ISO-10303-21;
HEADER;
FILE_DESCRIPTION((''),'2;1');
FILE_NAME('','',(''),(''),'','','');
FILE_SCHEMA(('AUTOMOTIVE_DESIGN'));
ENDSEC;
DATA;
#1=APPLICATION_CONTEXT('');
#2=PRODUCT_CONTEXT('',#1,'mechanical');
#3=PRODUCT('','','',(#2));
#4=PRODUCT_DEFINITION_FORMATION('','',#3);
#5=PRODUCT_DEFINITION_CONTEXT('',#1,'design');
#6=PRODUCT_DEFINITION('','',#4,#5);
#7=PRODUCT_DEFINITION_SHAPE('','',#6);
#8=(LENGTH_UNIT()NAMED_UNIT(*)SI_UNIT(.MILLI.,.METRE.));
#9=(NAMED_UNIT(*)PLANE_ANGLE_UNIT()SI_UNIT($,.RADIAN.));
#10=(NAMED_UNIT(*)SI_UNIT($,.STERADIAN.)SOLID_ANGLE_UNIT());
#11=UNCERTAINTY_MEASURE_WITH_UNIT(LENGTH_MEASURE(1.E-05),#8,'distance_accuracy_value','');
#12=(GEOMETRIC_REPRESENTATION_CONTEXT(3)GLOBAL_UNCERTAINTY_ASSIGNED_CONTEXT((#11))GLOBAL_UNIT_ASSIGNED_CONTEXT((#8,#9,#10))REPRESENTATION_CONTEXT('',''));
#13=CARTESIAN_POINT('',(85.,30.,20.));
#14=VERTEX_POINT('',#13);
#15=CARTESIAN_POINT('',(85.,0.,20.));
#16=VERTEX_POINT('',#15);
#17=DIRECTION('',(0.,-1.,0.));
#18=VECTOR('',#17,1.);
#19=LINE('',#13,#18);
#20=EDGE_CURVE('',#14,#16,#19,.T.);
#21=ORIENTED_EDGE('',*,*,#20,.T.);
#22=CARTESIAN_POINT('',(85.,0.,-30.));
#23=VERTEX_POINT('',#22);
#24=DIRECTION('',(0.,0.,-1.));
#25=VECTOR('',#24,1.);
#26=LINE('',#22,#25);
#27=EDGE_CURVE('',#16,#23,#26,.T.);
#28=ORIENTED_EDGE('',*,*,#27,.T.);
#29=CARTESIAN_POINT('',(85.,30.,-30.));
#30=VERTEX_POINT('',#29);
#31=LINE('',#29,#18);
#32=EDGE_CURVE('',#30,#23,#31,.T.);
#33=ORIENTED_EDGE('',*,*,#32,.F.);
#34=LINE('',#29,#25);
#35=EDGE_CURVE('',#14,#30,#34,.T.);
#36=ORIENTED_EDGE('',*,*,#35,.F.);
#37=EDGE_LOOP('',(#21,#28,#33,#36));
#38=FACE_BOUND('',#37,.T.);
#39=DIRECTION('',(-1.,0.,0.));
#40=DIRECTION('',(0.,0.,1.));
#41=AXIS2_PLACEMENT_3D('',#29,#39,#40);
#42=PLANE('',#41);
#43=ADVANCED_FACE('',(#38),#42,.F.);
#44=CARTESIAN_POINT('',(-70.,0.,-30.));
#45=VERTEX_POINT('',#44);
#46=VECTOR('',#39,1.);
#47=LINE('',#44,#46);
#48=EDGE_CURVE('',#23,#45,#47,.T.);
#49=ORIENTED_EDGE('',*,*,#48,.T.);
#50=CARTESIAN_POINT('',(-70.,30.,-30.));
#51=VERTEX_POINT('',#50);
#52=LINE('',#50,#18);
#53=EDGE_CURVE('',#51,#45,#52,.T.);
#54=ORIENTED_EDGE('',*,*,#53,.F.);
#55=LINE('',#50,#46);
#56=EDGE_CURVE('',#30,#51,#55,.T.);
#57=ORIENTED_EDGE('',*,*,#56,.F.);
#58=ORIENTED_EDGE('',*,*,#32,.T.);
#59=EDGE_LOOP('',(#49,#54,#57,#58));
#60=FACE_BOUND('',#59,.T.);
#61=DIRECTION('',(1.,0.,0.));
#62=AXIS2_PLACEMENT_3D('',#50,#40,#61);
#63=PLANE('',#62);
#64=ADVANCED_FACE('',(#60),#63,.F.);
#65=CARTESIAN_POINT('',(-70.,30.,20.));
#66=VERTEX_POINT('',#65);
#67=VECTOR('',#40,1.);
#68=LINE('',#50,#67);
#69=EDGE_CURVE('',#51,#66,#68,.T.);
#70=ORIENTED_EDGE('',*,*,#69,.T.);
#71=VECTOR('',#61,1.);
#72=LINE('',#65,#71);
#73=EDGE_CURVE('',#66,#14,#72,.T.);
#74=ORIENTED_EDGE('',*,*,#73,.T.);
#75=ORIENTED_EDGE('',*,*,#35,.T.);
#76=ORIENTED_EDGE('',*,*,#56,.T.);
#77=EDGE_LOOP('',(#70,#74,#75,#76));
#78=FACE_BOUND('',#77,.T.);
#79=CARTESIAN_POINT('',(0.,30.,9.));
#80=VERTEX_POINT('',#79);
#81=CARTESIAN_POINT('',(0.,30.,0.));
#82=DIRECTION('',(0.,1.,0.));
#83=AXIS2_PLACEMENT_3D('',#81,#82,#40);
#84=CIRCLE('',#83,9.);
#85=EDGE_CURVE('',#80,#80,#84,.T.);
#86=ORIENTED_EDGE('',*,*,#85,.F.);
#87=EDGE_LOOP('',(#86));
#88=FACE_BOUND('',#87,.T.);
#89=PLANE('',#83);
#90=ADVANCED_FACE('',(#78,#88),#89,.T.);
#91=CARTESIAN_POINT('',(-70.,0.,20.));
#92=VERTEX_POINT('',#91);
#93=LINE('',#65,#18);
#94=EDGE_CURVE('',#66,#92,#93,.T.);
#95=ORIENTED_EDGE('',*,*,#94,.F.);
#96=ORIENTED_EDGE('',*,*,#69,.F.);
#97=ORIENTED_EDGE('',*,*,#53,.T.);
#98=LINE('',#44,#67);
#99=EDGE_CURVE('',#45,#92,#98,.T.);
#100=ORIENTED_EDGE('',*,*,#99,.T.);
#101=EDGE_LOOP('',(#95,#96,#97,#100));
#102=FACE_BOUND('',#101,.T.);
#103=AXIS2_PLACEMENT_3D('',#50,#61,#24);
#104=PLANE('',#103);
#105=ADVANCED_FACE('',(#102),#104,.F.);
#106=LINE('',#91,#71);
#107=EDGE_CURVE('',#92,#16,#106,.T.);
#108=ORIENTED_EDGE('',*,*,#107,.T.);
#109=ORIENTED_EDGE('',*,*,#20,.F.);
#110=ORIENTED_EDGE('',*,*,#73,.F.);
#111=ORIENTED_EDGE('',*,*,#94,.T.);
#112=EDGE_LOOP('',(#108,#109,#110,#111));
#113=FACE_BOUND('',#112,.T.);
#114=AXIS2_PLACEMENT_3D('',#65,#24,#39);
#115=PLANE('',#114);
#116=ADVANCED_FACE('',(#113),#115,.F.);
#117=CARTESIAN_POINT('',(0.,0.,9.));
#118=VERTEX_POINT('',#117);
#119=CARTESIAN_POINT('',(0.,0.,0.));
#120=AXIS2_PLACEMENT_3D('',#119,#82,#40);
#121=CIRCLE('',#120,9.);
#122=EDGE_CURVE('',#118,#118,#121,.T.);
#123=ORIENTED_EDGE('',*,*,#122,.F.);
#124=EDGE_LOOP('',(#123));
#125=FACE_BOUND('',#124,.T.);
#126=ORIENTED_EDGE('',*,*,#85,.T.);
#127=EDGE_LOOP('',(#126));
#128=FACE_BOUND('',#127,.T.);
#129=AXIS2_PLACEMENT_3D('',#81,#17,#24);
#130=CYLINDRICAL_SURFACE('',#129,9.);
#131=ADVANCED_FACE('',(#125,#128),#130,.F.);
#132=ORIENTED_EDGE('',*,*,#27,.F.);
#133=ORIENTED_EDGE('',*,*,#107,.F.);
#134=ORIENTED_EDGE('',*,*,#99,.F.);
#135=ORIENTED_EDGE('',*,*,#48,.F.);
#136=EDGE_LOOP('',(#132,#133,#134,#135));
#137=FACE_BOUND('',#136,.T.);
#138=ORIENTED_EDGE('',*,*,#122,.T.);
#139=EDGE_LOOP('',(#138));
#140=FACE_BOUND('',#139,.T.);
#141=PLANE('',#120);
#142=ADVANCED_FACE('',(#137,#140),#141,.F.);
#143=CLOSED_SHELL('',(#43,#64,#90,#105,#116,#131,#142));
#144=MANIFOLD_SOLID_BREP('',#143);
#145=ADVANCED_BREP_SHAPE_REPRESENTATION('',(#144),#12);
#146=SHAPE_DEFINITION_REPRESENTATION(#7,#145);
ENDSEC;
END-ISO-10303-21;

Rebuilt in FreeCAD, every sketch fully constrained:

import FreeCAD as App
import Part
import Sketcher
Q = App.Units.Quantity


def add_polygon(sketch, points):
    """Adds a closed chain of lines whose ends are joined by coincident constraints."""
    first, n = sketch.GeometryCount, len(points)
    for a, b in zip(points, points[1:] + points[:1]):
        sketch.addGeometry(Part.LineSegment(App.Vector(*a, 0), App.Vector(*b, 0)), False)
    for i in range(n):
        sketch.addConstraint(Sketcher.Constraint("Coincident", first + i, 2, first + (i + 1) % n, 1))

doc = App.newDocument("Part")
params = doc.addObject("Spreadsheet::Sheet", "Params")
for row, (alias, value) in enumerate([
    ("sketch1_diameter", "18 mm"),
    ("sketch1_width", "155 mm"),
    ("sketch1_height", "50 mm"),
    ("pad1_length", "30 mm"),
], start=1):
    params.set(f"A{row}", alias)
    params.set(f"B{row}", "=" + value)
    params.setAlias(f"B{row}", alias)

body = doc.addObject("PartDesign::Body", "Body")

# Sketch on XZ plane
sketch1 = body.newObject("Sketcher::SketchObject", "Sketch")
sketch1.AttachmentSupport = (doc.getObject("XZ_Plane"), [""])
sketch1.MapMode = "FlatFace"
add_polygon(sketch1, [(-70, -30), (-70, 20), (85, 20), (85, -30)])  # lines 0-3
sketch1.addGeometry(Part.Circle(App.Vector(0, 0, 0), App.Vector(0, 0, 1), 9), False)  # 4
sketch1.addConstraint([
    Sketcher.Constraint("Vertical", 0),
    Sketcher.Constraint("Horizontal", 1),
    Sketcher.Constraint("Vertical", 2),
    Sketcher.Constraint("Horizontal", 3),
    Sketcher.Constraint("Coincident", 4, 3, -1, 1),
    Sketcher.Constraint("Diameter", 4, Q("18 mm")),
    Sketcher.Constraint("DistanceX", 1, 1, 1, 2, Q("155 mm")),
    Sketcher.Constraint("DistanceY", 0, 1, 0, 2, Q("50 mm")),
    Sketcher.Constraint("DistanceX", 0, 2, -1, 1, Q("70 mm")),
    Sketcher.Constraint("DistanceY", -1, 1, 0, 2, Q("20 mm")),
])
sketch1.setExpression("Constraints[9]", "Params.sketch1_diameter")
sketch1.setExpression("Constraints[10]", "Params.sketch1_width")
sketch1.setExpression("Constraints[11]", "Params.sketch1_height")
pad1 = body.newObject("PartDesign::Pad", "Pad")
pad1.Profile = sketch1
pad1.setExpression("Length", "Params.pad1_length")
pad1.Reversed = True

doc.recompute()
